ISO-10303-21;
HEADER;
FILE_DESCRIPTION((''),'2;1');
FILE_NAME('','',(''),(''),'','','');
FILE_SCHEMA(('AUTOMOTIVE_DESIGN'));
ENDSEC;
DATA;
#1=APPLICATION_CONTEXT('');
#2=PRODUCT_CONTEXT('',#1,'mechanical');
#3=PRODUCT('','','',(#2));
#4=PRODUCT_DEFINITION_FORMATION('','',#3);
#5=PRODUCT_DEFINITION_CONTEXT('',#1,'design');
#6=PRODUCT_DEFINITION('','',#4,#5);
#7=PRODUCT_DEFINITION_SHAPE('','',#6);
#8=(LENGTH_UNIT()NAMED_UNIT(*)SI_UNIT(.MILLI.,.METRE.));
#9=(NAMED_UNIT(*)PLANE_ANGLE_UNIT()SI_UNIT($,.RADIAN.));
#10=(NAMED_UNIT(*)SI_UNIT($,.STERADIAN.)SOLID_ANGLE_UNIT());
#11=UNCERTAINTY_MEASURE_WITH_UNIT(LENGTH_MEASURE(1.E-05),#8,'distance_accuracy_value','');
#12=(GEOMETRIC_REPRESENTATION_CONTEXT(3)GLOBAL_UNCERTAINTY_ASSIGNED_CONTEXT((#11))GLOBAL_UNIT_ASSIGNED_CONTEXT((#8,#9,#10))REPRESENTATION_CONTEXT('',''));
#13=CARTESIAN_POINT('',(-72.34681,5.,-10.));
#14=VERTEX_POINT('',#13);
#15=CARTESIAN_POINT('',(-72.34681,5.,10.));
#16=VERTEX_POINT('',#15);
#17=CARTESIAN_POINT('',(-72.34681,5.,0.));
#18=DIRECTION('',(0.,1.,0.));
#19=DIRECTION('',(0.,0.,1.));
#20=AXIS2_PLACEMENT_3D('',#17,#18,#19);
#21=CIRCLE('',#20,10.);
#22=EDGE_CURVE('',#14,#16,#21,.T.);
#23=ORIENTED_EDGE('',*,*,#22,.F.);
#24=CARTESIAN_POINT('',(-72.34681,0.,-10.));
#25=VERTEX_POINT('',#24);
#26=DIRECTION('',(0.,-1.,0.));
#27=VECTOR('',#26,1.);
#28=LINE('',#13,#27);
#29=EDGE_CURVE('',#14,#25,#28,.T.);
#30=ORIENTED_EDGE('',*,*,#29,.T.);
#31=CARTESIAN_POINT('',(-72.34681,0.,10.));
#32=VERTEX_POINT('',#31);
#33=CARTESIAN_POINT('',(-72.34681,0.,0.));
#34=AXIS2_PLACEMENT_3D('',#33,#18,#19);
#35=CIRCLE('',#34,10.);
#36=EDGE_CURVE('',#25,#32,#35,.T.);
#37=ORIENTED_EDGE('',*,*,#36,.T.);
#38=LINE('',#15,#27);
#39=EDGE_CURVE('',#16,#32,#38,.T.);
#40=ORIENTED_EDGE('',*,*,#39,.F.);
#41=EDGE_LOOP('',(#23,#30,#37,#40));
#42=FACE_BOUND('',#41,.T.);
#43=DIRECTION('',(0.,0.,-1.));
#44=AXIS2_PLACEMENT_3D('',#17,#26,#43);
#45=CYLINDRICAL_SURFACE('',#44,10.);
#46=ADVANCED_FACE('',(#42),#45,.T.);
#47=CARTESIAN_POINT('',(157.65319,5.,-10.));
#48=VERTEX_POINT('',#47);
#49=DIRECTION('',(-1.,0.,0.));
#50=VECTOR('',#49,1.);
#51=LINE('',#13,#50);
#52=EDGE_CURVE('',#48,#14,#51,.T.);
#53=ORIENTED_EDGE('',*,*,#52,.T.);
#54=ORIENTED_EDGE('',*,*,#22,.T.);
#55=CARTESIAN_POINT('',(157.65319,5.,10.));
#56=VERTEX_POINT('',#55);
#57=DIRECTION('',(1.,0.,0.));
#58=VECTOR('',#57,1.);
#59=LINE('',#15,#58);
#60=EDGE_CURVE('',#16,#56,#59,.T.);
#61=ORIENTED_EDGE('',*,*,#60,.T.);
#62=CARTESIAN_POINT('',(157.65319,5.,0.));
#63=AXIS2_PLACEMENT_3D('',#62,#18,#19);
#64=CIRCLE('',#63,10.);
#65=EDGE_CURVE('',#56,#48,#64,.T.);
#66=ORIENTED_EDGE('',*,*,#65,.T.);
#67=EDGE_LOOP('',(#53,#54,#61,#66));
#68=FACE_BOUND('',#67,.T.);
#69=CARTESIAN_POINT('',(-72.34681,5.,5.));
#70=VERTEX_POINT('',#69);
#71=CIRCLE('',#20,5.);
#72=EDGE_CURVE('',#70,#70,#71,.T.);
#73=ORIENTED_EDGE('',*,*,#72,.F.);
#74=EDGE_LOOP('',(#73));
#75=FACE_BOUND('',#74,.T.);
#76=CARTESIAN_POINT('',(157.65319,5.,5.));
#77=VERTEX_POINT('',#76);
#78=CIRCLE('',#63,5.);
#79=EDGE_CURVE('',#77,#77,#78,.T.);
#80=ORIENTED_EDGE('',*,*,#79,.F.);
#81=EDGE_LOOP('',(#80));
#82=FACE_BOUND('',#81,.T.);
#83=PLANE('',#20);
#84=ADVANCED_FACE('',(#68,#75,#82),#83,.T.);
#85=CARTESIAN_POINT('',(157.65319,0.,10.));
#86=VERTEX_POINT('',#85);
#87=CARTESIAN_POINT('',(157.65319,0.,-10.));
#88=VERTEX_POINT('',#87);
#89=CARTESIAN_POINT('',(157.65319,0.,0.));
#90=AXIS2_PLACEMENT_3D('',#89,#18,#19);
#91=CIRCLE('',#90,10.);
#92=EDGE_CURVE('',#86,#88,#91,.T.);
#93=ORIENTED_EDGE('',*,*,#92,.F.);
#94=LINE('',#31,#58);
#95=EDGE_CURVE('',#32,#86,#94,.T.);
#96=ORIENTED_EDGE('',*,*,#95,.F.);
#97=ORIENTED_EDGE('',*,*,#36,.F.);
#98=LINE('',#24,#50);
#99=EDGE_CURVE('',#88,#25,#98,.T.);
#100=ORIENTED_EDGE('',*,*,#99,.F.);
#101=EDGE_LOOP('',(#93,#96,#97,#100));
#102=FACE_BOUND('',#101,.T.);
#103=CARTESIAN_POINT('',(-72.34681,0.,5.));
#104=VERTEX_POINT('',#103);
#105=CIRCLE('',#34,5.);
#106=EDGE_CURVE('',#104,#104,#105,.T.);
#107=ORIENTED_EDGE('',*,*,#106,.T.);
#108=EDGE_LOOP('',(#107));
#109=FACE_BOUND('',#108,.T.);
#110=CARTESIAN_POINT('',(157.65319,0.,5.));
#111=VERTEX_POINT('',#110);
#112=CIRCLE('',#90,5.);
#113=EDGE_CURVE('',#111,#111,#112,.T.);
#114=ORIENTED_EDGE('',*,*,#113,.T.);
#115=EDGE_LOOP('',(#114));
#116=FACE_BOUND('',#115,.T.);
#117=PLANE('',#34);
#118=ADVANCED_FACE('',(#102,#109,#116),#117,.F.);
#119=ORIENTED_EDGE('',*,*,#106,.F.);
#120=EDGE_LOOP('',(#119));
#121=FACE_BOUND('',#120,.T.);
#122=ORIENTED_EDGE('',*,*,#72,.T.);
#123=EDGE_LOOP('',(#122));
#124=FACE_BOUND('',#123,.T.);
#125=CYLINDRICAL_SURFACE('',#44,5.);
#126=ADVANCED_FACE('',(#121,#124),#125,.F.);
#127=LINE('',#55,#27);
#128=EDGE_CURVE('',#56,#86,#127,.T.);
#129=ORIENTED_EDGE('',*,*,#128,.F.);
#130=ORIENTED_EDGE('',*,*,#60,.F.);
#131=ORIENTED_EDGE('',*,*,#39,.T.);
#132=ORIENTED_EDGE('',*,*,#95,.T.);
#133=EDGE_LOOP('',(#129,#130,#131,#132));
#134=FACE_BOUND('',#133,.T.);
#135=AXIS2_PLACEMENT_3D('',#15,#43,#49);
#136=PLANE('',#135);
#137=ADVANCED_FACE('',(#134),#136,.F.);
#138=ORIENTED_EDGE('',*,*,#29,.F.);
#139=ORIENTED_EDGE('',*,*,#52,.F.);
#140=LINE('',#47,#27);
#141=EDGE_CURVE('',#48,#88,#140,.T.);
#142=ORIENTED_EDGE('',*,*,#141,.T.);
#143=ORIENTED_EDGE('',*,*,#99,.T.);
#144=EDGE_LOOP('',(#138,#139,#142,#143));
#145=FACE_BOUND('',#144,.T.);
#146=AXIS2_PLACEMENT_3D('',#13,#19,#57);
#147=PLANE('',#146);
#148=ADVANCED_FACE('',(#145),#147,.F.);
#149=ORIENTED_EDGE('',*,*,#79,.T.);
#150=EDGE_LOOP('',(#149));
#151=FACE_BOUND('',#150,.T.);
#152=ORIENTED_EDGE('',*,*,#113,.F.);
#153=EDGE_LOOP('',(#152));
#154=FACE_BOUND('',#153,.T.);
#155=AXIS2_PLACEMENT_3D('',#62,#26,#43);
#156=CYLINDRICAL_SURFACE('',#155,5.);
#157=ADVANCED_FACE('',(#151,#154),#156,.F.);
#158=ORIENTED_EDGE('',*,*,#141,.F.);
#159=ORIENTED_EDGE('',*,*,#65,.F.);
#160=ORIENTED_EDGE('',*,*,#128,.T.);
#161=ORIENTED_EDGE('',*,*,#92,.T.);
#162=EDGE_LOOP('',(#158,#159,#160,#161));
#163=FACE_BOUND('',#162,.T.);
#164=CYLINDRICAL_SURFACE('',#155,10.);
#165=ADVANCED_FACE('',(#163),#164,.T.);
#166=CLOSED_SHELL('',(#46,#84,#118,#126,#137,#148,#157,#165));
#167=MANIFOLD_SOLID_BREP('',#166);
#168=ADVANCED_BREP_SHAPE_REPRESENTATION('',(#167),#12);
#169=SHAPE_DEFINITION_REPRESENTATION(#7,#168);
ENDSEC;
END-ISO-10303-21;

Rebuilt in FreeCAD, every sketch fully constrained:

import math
import FreeCAD as App
import Part
import Sketcher

doc = App.newDocument("Part")
params = doc.addObject("Spreadsheet::Sheet", "Params")
for row, (alias, value) in enumerate([
    ("sketch1_diameter", "10 mm"),
    ("sketch1_radius", "10 mm"),
    ("sketch1_width", "230 mm"),
    ("pad1_length", "5 mm"),
], start=1):
    params.set(f"A{row}", alias)
    params.set(f"B{row}", "=" + value)
    params.setAlias(f"B{row}", alias)

body = doc.addObject("PartDesign::Body", "Body")

sketch1 = doc.addObject("Sketcher::SketchObject", "Sketch")
body.addObject(sketch1)
sketch1.AttachmentSupport = (doc.XZ_Plane, [""])
sketch1.MapMode = "FlatFace"
sketch1.addGeometry([
    Part.LineSegment(App.Vector(158, -10, 0), App.Vector(-72, -10, 0)),
    Part.ArcOfCircle(Part.Circle(App.Vector(-72, 0, 0), App.Vector(0, 0, 1), 10), math.radians(90), math.radians(270)),
    Part.LineSegment(App.Vector(-72, 10, 0), App.Vector(158, 10, 0)),
    Part.ArcOfCircle(Part.Circle(App.Vector(158, 0, 0), App.Vector(0, 0, 1), 10), math.radians(-90), math.radians(90)),
    Part.Circle(App.Vector(158, 0, 0), App.Vector(0, 0, 1), 5),
    Part.Circle(App.Vector(-72, 0, 0), App.Vector(0, 0, 1), 5),
], False)
sketch1.addConstraint([
    Sketcher.Constraint("Tangent", 0, 2, 1, 2),
    Sketcher.Constraint("Tangent", 1, 1, 2, 1),
    Sketcher.Constraint("Tangent", 2, 2, 3, 2),
    Sketcher.Constraint("Tangent", 3, 1, 0, 1),
    Sketcher.Constraint("Horizontal", 0),
    Sketcher.Constraint("Horizontal", 2),
    Sketcher.Constraint("Coincident", 4, 3, 3, 3),
    Sketcher.Constraint("Coincident", 5, 3, 1, 3),
    Sketcher.Constraint("Equal", 4, 5),
    Sketcher.Constraint("PointOnObject", 1, 3, -1),
    Sketcher.Constraint("Diameter", 4, 10.0),
    Sketcher.Constraint("Radius", 1, 10.0),
    Sketcher.Constraint("DistanceX", 0, 2, 0, 1, 230.0),
    Sketcher.Constraint("DistanceX", 1, 3, -1, 1, 72.34681),
])
sketch1.setExpression("Constraints[10]", "Params.sketch1_diameter")
sketch1.setExpression("Constraints[11]", "Params.sketch1_radius")
sketch1.setExpression("Constraints[12]", "Params.sketch1_width")
pad1 = doc.addObject("PartDesign::Pad", "Pad")
body.addObject(pad1)
pad1.Profile = sketch1
pad1.setExpression("Length", "Params.pad1_length")
pad1.Reversed = True

doc.recompute()
